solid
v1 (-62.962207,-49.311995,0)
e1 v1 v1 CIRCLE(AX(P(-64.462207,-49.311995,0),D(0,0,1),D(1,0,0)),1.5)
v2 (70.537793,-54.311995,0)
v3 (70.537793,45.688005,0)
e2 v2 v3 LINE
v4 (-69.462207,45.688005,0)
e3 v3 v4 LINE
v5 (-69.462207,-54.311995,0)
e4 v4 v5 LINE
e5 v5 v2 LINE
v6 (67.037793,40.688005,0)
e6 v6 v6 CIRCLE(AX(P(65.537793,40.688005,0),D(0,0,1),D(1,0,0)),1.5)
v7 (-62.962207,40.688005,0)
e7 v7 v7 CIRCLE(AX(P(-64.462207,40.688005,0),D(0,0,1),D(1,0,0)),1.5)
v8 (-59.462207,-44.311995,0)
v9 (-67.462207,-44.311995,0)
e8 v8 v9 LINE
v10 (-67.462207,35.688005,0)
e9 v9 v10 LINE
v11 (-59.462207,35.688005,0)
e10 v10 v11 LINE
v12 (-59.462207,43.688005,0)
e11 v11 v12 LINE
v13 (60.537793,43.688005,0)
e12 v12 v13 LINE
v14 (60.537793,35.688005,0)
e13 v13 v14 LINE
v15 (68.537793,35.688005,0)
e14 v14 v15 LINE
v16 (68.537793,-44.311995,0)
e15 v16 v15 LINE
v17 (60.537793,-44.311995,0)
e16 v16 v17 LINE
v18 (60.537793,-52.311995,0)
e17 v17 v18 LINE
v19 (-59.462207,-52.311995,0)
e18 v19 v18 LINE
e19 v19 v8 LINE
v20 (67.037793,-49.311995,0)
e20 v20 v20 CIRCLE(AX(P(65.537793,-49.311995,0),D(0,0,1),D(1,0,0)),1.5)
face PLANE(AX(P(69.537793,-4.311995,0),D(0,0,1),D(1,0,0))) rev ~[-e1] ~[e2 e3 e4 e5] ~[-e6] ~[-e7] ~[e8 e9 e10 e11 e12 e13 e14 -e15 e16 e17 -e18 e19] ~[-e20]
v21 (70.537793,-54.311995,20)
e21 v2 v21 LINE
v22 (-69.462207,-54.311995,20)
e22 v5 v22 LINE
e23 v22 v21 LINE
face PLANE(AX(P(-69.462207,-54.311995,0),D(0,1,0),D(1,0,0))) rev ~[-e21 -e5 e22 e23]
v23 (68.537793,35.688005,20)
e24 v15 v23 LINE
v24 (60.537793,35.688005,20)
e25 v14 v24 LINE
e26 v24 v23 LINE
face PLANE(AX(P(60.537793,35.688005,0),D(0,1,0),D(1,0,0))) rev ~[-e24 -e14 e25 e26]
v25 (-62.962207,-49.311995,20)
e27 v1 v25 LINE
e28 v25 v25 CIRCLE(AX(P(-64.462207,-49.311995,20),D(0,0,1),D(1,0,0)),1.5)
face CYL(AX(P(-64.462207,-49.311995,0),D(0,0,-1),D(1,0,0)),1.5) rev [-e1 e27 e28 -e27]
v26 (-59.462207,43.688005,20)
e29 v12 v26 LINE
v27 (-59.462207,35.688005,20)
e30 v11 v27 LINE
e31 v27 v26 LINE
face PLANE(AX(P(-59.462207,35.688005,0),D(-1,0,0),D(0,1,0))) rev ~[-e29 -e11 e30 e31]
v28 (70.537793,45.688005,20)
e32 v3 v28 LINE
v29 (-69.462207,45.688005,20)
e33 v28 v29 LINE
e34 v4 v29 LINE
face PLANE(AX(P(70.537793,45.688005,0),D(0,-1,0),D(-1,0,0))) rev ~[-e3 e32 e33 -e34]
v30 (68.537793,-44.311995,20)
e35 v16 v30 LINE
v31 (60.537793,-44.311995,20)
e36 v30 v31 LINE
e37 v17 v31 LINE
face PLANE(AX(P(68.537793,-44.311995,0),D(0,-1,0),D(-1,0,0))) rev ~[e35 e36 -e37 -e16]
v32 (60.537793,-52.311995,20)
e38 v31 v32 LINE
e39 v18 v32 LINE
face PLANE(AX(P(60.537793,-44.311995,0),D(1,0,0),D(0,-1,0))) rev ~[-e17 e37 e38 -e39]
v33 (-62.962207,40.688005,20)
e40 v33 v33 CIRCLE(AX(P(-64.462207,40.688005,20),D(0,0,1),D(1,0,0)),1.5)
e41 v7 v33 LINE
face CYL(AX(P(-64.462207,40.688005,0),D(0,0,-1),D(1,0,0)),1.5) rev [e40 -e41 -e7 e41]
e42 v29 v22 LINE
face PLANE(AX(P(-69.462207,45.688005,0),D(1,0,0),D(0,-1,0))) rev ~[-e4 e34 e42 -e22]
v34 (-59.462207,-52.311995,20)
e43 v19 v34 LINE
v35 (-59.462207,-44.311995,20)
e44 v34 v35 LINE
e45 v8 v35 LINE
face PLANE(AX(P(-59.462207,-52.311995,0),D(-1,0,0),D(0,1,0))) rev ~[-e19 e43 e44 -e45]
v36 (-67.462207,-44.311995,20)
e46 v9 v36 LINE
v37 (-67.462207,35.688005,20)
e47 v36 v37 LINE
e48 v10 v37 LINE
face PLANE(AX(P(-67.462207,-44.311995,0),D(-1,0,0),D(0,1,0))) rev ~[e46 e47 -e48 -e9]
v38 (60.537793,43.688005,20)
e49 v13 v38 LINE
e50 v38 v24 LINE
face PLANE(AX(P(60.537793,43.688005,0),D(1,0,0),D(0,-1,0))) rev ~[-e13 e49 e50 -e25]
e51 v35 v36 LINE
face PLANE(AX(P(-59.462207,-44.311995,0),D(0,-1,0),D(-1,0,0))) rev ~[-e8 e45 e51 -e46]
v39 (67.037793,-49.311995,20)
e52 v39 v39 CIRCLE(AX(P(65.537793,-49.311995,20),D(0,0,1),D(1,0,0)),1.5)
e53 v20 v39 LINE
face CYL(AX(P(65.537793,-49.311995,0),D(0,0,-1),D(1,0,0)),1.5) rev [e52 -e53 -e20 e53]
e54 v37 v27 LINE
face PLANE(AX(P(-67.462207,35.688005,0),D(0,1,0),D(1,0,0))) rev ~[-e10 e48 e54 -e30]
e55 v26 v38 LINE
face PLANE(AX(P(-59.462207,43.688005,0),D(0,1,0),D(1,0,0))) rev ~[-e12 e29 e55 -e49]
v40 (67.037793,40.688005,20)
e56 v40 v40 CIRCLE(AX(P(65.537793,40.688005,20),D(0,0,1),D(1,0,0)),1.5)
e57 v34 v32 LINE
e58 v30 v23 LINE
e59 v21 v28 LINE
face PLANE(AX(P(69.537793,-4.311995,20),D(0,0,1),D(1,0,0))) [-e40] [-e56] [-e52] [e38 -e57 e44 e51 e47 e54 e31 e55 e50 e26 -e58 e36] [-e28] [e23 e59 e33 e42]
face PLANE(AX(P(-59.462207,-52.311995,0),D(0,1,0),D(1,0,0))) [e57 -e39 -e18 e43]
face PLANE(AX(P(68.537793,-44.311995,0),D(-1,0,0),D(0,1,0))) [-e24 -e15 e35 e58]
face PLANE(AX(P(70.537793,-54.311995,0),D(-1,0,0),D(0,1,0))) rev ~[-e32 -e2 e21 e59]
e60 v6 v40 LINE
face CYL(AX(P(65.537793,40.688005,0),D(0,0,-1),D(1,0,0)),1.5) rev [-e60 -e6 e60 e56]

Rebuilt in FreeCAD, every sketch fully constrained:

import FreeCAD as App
import Part
import Sketcher

V = App.Vector

doc = App.newDocument("Part")
params = doc.addObject("Spreadsheet::Sheet", "Params")
for row, (alias, value) in enumerate([
    ("sketch1_diameter", "3 mm"),
    ("sketch1_width", "140 mm"),
    ("sketch1_width2", "8 mm"),
    ("sketch1_width3", "120 mm"),
    ("sketch1_height", "100 mm"),
    ("pad1_length", "20 mm"),
], start=1):
    params.set(f"A{row}", alias)
    params.set(f"B{row}", "=" + value)
    params.setAlias(f"B{row}", alias)

body = doc.addObject("PartDesign::Body", "Body")

sketch1 = doc.addObject("Sketcher::SketchObject", "Sketch")
body.addObject(sketch1)
sketch1.AttachmentSupport = (doc.XY_Plane, [""])
sketch1.MapMode = "FlatFace"
sketch1.addGeometry([
    Part.LineSegment(V(-69.5, 45.7, 0), V(-69.5, -54.3, 0)),
    Part.LineSegment(V(-69.5, -54.3, 0), V(70.5, -54.3, 0)),
    Part.LineSegment(V(70.5, -54.3, 0), V(70.5, 45.7, 0)),
    Part.LineSegment(V(70.5, 45.7, 0), V(-69.5, 45.7, 0)),
    Part.Circle(V(-64.5, -49.3, 0), V(0, 0, 1), 1.5),
    Part.Circle(V(65.5, -49.3, 0), V(0, 0, 1), 1.5),
    Part.Circle(V(-64.5, 40.7, 0), V(0, 0, 1), 1.5),
    Part.LineSegment(V(68.5, 35.7, 0), V(68.5, -44.3, 0)),
    Part.LineSegment(V(68.5, -44.3, 0), V(60.5, -44.3, 0)),
    Part.LineSegment(V(60.5, -44.3, 0), V(60.5, -52.3, 0)),
    Part.LineSegment(V(60.5, -52.3, 0), V(-59.5, -52.3, 0)),
    Part.LineSegment(V(-59.5, -52.3, 0), V(-59.5, -44.3, 0)),
    Part.LineSegment(V(-59.5, -44.3, 0), V(-67.5, -44.3, 0)),
    Part.LineSegment(V(-67.5, -44.3, 0), V(-67.5, 35.7, 0)),
    Part.LineSegment(V(-67.5, 35.7, 0), V(-59.5, 35.7, 0)),
    Part.LineSegment(V(-59.5, 35.7, 0), V(-59.5, 43.7, 0)),
    Part.LineSegment(V(-59.5, 43.7, 0), V(60.5, 43.7, 0)),
    Part.LineSegment(V(60.5, 43.7, 0), V(60.5, 35.7, 0)),
    Part.LineSegment(V(60.5, 35.7, 0), V(68.5, 35.7, 0)),
    Part.Circle(V(65.5, 40.7, 0), V(0, 0, 1), 1.5),
], False)
sketch1.addConstraint([
    Sketcher.Constraint("Coincident", 0, 2, 1, 1),
    Sketcher.Constraint("Coincident", 1, 2, 2, 1),
    Sketcher.Constraint("Coincident", 2, 2, 3, 1),
    Sketcher.Constraint("Coincident", 3, 2, 0, 1),
    Sketcher.Constraint("Coincident", 7, 2, 8, 1),
    Sketcher.Constraint("Coincident", 8, 2, 9, 1),
    Sketcher.Constraint("Coincident", 9, 2, 10, 1),
    Sketcher.Constraint("Coincident", 10, 2, 11, 1),
    Sketcher.Constraint("Coincident", 11, 2, 12, 1),
    Sketcher.Constraint("Coincident", 12, 2, 13, 1),
    Sketcher.Constraint("Coincident", 13, 2, 14, 1),
    Sketcher.Constraint("Coincident", 14, 2, 15, 1),
    Sketcher.Constraint("Coincident", 15, 2, 16, 1),
    Sketcher.Constraint("Coincident", 16, 2, 17, 1),
    Sketcher.Constraint("Coincident", 17, 2, 18, 1),
    Sketcher.Constraint("Coincident", 18, 2, 7, 1),
    Sketcher.Constraint("Vertical", 0),
    Sketcher.Constraint("Horizontal", 1),
    Sketcher.Constraint("Vertical", 2),
    Sketcher.Constraint("Horizontal", 3),
    Sketcher.Constraint("Vertical", 7),
    Sketcher.Constraint("Horizontal", 8),
    Sketcher.Constraint("Vertical", 9),
    Sketcher.Constraint("Horizontal", 10),
    Sketcher.Constraint("Vertical", 11),
    Sketcher.Constraint("Horizontal", 12),
    Sketcher.Constraint("Vertical", 13),
    Sketcher.Constraint("Horizontal", 14),
    Sketcher.Constraint("Vertical", 15),
    Sketcher.Constraint("Horizontal", 16),
    Sketcher.Constraint("Vertical", 17),
    Sketcher.Constraint("Horizontal", 18),
    Sketcher.Constraint("Equal", 4, 5),
    Sketcher.Constraint("Equal", 5, 6),
    Sketcher.Constraint("Equal", 6, 19),
    Sketcher.Constraint("Horizontal", 4, 3, 5, 3),
    Sketcher.Constraint("Horizontal", 6, 3, 19, 3),
    Sketcher.Constraint("Horizontal", 8, 2, 11, 2),
    Sketcher.Constraint("Horizontal", 14, 2, 17, 2),
    Sketcher.Constraint("Vertical", 4, 3, 6, 3),
    Sketcher.Constraint("Vertical", 5, 3, 19, 3),
    Sketcher.Constraint("Vertical", 11, 2, 14, 2),
    Sketcher.Constraint("Vertical", 9, 2, 16, 2),
    Sketcher.Constraint("Equal", 8, 12),
    Sketcher.Constraint("Equal", 18, 9),
    Sketcher.Constraint("Equal", 11, 15),
    Sketcher.Constraint("Diameter", 4, 3.0),
    Sketcher.Constraint("DistanceX", 1, 1, 1, 2, 140.0),
    Sketcher.Constraint("DistanceX", 8, 2, 8, 1, 8.0),
    Sketcher.Constraint("DistanceX", 10, 2, 10, 1, 120.0),
    Sketcher.Constraint("DistanceY", 0, 2, 0, 1, 100.0),
    Sketcher.Constraint("DistanceY", 7, 2, 7, 1, 80.0),
    Sketcher.Constraint("DistanceX", 4, 3, 5, 3, 130.0),
    Sketcher.Constraint("DistanceY", 4, 3, 6, 3, 90.0),
    Sketcher.Constraint("DistanceX", 0, 2, 4, 3, 5.0),
    Sketcher.Constraint("DistanceY", 0, 2, 4, 3, 5.0),
    Sketcher.Constraint("DistanceX", 5, 3, 7, 2, 3.0),
    Sketcher.Constraint("DistanceY", 5, 3, 7, 2, 5.0),
    Sketcher.Constraint("DistanceX", 4, 3, -1, 1, 64.462207),
    Sketcher.Constraint("DistanceY", 4, 3, -1, 1, 49.311995),
])
sketch1.setExpression("Constraints[46]", "Params.sketch1_diameter")
sketch1.setExpression("Constraints[47]", "Params.sketch1_width")
sketch1.setExpression("Constraints[48]", "Params.sketch1_width2")
sketch1.setExpression("Constraints[49]", "Params.sketch1_width3")
sketch1.setExpression("Constraints[50]", "Params.sketch1_height")
pad1 = doc.addObject("PartDesign::Pad", "Pad")
body.addObject(pad1)
pad1.Profile = sketch1
pad1.setExpression("Length", "Params.pad1_length")

doc.recompute()
